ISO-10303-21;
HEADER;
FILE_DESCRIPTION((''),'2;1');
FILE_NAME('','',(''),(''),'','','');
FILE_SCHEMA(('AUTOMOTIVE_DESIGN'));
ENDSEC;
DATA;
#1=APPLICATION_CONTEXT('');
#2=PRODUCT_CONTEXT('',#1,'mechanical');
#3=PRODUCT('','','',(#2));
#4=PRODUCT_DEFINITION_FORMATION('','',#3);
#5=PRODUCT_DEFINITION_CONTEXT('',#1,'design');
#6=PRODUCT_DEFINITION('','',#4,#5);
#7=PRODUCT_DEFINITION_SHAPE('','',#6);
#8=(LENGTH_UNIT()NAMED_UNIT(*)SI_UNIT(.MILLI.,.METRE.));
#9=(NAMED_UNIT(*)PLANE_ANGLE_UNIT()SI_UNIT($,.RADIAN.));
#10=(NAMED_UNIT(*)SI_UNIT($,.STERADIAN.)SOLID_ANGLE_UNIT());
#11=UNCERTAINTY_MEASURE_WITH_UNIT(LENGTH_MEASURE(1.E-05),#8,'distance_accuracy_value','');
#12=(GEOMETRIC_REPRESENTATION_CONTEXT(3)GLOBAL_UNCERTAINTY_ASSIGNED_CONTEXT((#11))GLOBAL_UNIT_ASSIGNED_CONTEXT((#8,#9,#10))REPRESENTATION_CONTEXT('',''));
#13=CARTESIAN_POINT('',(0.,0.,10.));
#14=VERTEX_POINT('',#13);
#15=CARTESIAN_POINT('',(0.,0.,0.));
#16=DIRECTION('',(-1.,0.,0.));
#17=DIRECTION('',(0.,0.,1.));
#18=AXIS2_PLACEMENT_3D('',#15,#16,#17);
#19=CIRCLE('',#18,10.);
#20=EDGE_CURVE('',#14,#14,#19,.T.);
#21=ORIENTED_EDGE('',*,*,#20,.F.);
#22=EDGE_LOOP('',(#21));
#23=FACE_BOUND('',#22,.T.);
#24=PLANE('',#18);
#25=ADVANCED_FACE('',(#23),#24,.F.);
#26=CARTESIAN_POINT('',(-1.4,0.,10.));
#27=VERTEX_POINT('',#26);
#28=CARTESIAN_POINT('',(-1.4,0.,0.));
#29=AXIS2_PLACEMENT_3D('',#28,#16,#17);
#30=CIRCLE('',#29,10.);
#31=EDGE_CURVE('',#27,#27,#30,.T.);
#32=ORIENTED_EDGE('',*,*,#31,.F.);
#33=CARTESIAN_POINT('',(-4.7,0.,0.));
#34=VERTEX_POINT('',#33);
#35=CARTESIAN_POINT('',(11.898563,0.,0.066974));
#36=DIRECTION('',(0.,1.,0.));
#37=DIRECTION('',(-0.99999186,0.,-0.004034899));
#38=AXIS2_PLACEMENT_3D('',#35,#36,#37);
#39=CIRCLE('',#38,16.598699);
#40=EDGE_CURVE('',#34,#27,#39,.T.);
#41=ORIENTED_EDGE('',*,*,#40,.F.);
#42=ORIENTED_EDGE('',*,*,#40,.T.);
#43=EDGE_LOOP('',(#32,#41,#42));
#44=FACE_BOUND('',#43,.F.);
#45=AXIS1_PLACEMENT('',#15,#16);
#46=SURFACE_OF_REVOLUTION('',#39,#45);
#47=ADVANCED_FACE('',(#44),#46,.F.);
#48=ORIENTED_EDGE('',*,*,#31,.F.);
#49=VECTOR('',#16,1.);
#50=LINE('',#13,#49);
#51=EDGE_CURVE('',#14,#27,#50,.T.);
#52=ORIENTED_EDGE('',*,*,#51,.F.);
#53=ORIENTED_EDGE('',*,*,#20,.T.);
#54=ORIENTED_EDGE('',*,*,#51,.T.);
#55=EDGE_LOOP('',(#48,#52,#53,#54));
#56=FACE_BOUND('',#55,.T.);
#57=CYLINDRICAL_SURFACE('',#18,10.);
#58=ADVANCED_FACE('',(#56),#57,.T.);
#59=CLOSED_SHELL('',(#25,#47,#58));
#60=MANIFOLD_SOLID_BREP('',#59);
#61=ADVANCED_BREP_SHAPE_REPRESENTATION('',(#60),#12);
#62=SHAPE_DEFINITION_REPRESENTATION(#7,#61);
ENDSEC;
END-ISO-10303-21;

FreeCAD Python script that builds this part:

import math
import FreeCAD as App
import Part
import Sketcher

V = App.Vector

doc = App.newDocument("Part")
body = doc.addObject("PartDesign::Body", "Body")

sketch1 = body.newObject("Sketcher::SketchObject", "Sketch")
sketch1.AttachmentSupport = (doc.getObject("XZ_Plane"), [""])
sketch1.MapMode = "FlatFace"
sketch1.addGeometry([
    Part.LineSegment(V(0, 10, 0), V(0, 0, 0)),
    Part.LineSegment(V(0, 0, 0), V(-4.7, 0, 0)),
    Part.ArcOfCircle(Part.Circle(V(11.9, 0.1, 0), V(0, 0, 1), 16.6), math.radians(143), math.radians(180)),
    Part.LineSegment(V(-1.4, 10, 0), V(0, 10, 0)),
], False)
sketch1.addConstraint([
    Sketcher.Constraint("Coincident", 0, 2, 1, 1),
    Sketcher.Constraint("Coincident", 1, 2, 2, 2),
    Sketcher.Constraint("Coincident", 2, 1, 3, 1),
    Sketcher.Constraint("Coincident", 3, 2, 0, 1),
    Sketcher.Constraint("Vertical", 0),
    Sketcher.Constraint("Horizontal", 1),
    Sketcher.Constraint("Horizontal", 3),
    Sketcher.Constraint("Coincident", 0, 2, -1, 1),
    Sketcher.Constraint("DistanceY", 0, 2, 0, 1, 10.0),
    Sketcher.Constraint("DistanceX", 1, 2, 1, 1, 4.7),
    Sketcher.Constraint("DistanceX", 3, 1, 3, 2, 1.4),
    Sketcher.Constraint("Radius", 2, 16.5985),
])
revolution = body.newObject("PartDesign::Revolution", "Revolution")
revolution.Profile = sketch1
revolution.ReferenceAxis = (sketch1, ["H_Axis"])
revolution.Angle = 360

doc.recompute()
